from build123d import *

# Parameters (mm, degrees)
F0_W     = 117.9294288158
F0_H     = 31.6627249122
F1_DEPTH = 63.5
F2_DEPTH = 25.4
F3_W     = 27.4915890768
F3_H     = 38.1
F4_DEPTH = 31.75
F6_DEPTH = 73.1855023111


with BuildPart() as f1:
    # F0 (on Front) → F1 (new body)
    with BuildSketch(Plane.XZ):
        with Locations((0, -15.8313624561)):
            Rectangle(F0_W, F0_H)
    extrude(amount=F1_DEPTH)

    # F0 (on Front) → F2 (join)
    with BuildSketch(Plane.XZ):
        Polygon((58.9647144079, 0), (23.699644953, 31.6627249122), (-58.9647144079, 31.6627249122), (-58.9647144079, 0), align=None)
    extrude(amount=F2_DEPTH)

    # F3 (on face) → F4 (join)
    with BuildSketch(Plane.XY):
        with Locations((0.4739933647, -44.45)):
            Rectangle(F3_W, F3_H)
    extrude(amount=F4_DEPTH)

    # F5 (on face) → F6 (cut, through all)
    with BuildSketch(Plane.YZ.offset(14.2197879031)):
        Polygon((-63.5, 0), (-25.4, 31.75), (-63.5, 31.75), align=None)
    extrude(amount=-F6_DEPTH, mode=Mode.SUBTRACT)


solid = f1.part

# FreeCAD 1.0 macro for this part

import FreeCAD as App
import Part
import Sketcher
from FreeCAD import Vector
Q = App.Units.Quantity

doc = App.newDocument("Part")
body = doc.addObject("PartDesign::Body", "Body")

# Sketch on XZ plane
sketch1 = doc.addObject("Sketcher::SketchObject", "Sketch")
body.addObject(sketch1)
sketch1.AttachmentSupport = (doc.XZ_Plane, [""])
sketch1.MapMode = "FlatFace"
sketch1.addGeometry([
    Part.LineSegment(Vector(-58.964714, 0, 0), Vector(-58.964714, -31.662725, 0)),
    Part.LineSegment(Vector(-58.964714, -31.662725, 0), Vector(58.964714, -31.662725, 0)),
    Part.LineSegment(Vector(58.964714, -31.662725, 0), Vector(58.964714, 0, 0)),
    Part.LineSegment(Vector(58.964714, 0, 0), Vector(-58.964714, 0, 0)),
], False)
sketch1.addConstraint([
    Sketcher.Constraint("Coincident", 0, 2, 1, 1),
    Sketcher.Constraint("Coincident", 1, 2, 2, 1),
    Sketcher.Constraint("Coincident", 2, 2, 3, 1),
    Sketcher.Constraint("Coincident", 3, 2, 0, 1),
    Sketcher.Constraint("Vertical", 0),
    Sketcher.Constraint("Horizontal", 1),
    Sketcher.Constraint("Vertical", 2),
    Sketcher.Constraint("Horizontal", 3),
    Sketcher.Constraint("Symmetric", 2, 2, 3, 2, -1, 1),
    Sketcher.Constraint("DistanceX", 1, 1, 1, 2, 117.929429),
    Sketcher.Constraint("DistanceY", 0, 2, 0, 1, 31.662725),
])
pad1 = doc.addObject("PartDesign::Pad", "Pad")
body.addObject(pad1)
pad1.Profile = sketch1
pad1.Length = Q("2.5 in")

# Sketch on XZ plane
sketch2 = doc.addObject("Sketcher::SketchObject", "Sketch001")
body.addObject(sketch2)
sketch2.AttachmentSupport = (doc.XZ_Plane, [""])
sketch2.MapMode = "FlatFace"
sketch2.addGeometry([
    Part.LineSegment(Vector(58.964714, 0, 0), Vector(23.699645, 31.662725, 0)),
    Part.LineSegment(Vector(23.699645, 31.662725, 0), Vector(-58.964714, 31.662725, 0)),
    Part.LineSegment(Vector(-58.964714, 31.662725, 0), Vector(-58.964714, 0, 0)),
    Part.LineSegment(Vector(-58.964714, 0, 0), Vector(58.964714, 0, 0)),
], False)
sketch2.addConstraint([
    Sketcher.Constraint("Coincident", 0, 2, 1, 1),
    Sketcher.Constraint("Coincident", 1, 2, 2, 1),
    Sketcher.Constraint("Coincident", 2, 2, 3, 1),
    Sketcher.Constraint("Coincident", 3, 2, 0, 1),
    Sketcher.Constraint("Horizontal", 1),
    Sketcher.Constraint("Vertical", 2),
    Sketcher.Constraint("Horizontal", 3),
    Sketcher.Constraint("Symmetric", 2, 2, 3, 2, -1, 1),
    Sketcher.Constraint("Distance", 0, 47.393599),
    Sketcher.Constraint("DistanceX", 1, 2, 1, 1, 82.664359),
    Sketcher.Constraint("DistanceX", 3, 1, 3, 2, 117.929429),
])
pad2 = doc.addObject("PartDesign::Pad", "Pad001")
body.addObject(pad2)
pad2.Profile = sketch2
pad2.Length = Q("1 in")

# Sketch on XY plane
sketch3 = doc.addObject("Sketcher::SketchObject", "Sketch002")
body.addObject(sketch3)
sketch3.AttachmentSupport = (doc.XY_Plane, [""])
sketch3.MapMode = "FlatFace"
sketch3.addGeometry([
    Part.LineSegment(Vector(-13.271801, -25.4, 0), Vector(-13.271801, -63.5, 0)),
    Part.LineSegment(Vector(-13.271801, -63.5, 0), Vector(14.219788, -63.5, 0)),
    Part.LineSegment(Vector(14.219788, -63.5, 0), Vector(14.219788, -25.4, 0)),
    Part.LineSegment(Vector(14.219788, -25.4, 0), Vector(-13.271801, -25.4, 0)),
], False)
sketch3.addConstraint([
    Sketcher.Constraint("Coincident", 0, 2, 1, 1),
    Sketcher.Constraint("Coincident", 1, 2, 2, 1),
    Sketcher.Constraint("Coincident", 2, 2, 3, 1),
    Sketcher.Constraint("Coincident", 3, 2, 0, 1),
    Sketcher.Constraint("Vertical", 0),
    Sketcher.Constraint("Horizontal", 1),
    Sketcher.Constraint("Vertical", 2),
    Sketcher.Constraint("Horizontal", 3),
    Sketcher.Constraint("DistanceY", 0, 2, 0, 1, Q("1.5 in")),
    Sketcher.Constraint("DistanceY", 2, 2, -1, 1, Q("1 in")),
    Sketcher.Constraint("DistanceX", 1, 1, 1, 2, 27.491589),
    Sketcher.Constraint("DistanceX", 0, 2, -1, 1, 13.271801),
])
pad3 = doc.addObject("PartDesign::Pad", "Pad002")
body.addObject(pad3)
pad3.Profile = sketch3
pad3.Length = Q("1.25 in")

# Sketch on YZ plane
sketch4 = doc.addObject("Sketcher::SketchObject", "Sketch003")
body.addObject(sketch4)
sketch4.AttachmentSupport = (doc.YZ_Plane, [""])
sketch4.MapMode = "FlatFace"
sketch4.AttachmentOffset = App.Placement(Vector(0, 0, 14.219788), App.Rotation())
sketch4.addGeometry([
    Part.LineSegment(Vector(-63.5, 0, 0), Vector(-25.4, 31.75, 0)),
    Part.LineSegment(Vector(-25.4, 31.75, 0), Vector(-63.5, 31.75, 0)),
    Part.LineSegment(Vector(-63.5, 31.75, 0), Vector(-63.5, 0, 0)),
], False)
sketch4.addConstraint([
    Sketcher.Constraint("Coincident", 0, 2, 1, 1),
    Sketcher.Constraint("Coincident", 1, 2, 2, 1),
    Sketcher.Constraint("Coincident", 2, 2, 0, 1),
    Sketcher.Constraint("Horizontal", 1),
    Sketcher.Constraint("Vertical", 2),
    Sketcher.Constraint("PointOnObject", 2, 2, -1),
    Sketcher.Constraint("DistanceX", 1, 2, 1, 1, Q("1.5 in")),
    Sketcher.Constraint("DistanceX", 0, 2, -1, 1, Q("1 in")),
    Sketcher.Constraint("DistanceY", 2, 2, 2, 1, Q("1.25 in")),
])
pocket1 = doc.addObject("PartDesign::Pocket", "Pocket")
body.addObject(pocket1)
pocket1.Profile = sketch4
pocket1.Type = "ThroughAll"

doc.recompute()
